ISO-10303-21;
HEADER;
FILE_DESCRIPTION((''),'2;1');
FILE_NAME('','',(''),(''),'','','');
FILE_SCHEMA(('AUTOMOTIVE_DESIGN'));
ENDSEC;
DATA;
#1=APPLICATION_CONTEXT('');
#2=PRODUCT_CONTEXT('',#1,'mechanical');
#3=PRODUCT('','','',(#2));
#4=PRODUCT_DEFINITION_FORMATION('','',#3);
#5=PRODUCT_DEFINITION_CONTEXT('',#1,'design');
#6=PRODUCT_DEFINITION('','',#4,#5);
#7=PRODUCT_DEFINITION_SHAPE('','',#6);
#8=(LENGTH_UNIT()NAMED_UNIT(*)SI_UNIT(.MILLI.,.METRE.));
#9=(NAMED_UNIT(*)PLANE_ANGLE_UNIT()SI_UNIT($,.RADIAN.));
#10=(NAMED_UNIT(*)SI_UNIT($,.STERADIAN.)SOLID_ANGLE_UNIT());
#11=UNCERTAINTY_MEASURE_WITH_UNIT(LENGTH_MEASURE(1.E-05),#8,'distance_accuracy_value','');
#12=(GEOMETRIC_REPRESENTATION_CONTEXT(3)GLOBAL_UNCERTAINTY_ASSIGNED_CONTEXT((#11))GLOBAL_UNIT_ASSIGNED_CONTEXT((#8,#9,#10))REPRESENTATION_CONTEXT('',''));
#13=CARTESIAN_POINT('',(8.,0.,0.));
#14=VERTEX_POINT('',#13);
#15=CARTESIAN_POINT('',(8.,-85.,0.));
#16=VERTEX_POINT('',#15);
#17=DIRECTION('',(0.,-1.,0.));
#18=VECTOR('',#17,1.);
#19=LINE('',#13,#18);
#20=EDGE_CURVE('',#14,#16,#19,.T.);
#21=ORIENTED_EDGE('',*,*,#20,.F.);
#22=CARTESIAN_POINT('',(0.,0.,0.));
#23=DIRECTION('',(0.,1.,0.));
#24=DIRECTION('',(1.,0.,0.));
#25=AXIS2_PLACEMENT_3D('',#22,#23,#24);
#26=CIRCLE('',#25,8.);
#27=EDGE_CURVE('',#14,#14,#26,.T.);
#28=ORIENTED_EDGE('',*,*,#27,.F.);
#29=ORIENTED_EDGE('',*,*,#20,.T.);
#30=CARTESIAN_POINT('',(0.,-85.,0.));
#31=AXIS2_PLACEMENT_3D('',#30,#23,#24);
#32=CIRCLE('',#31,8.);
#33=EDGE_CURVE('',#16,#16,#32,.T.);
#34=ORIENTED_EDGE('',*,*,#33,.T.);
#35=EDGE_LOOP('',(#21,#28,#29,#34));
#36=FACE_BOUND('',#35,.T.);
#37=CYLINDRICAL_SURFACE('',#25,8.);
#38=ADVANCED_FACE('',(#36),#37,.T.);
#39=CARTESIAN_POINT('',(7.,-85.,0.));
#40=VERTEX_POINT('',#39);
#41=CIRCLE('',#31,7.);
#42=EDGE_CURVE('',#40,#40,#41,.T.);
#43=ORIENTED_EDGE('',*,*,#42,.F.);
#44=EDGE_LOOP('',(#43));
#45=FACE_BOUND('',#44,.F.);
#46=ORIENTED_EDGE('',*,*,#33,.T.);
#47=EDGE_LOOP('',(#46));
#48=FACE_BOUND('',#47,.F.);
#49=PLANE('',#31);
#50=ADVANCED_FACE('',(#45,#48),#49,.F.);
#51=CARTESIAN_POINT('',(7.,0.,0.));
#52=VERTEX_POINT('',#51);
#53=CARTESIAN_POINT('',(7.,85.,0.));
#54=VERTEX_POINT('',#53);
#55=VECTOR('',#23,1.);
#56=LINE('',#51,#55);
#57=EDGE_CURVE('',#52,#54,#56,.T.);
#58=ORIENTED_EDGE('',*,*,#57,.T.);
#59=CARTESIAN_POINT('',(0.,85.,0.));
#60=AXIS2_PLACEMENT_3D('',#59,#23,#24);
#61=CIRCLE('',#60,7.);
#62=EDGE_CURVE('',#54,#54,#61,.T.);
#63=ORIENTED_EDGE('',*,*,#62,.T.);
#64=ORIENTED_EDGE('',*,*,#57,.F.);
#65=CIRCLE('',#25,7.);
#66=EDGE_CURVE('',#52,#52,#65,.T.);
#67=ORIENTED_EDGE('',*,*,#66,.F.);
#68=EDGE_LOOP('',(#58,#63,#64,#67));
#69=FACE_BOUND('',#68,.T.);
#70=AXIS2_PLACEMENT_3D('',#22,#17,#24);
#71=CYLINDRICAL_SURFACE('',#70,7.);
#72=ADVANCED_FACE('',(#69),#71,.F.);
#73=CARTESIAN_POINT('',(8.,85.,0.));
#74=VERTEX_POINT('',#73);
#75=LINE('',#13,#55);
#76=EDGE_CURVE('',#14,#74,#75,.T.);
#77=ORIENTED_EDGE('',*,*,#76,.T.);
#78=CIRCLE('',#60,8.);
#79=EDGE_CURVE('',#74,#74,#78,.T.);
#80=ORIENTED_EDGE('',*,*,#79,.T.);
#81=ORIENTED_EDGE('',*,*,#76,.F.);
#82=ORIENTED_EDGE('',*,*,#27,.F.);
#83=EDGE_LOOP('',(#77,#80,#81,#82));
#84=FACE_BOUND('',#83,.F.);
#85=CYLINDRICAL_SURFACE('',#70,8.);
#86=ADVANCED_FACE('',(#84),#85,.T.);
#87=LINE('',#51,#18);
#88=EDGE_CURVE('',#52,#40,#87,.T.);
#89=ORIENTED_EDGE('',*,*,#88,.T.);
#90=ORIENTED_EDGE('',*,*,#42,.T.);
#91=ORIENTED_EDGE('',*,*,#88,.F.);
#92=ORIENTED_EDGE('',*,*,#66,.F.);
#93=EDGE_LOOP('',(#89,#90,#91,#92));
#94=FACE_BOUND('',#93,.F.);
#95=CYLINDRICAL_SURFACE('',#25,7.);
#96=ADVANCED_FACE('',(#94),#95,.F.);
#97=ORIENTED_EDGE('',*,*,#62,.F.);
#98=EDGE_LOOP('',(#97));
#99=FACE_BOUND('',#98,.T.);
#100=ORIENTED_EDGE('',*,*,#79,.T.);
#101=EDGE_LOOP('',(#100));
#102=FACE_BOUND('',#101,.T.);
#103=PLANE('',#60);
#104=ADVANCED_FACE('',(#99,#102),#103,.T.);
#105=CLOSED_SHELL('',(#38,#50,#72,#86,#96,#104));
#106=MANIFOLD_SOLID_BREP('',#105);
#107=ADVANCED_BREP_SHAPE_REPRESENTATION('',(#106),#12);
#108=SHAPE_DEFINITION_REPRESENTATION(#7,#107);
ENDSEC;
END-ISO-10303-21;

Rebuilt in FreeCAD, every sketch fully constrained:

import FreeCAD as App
import Part
import Sketcher
from FreeCAD import Vector

doc = App.newDocument("Part")
body = doc.addObject("PartDesign::Body", "Body")

sketch1 = doc.addObject("Sketcher::SketchObject", "Sketch")
body.addObject(sketch1)
sketch1.AttachmentSupport = (doc.XZ_Plane, [""])
sketch1.MapMode = "FlatFace"
sketch1.addGeometry([
    Part.Circle(Vector(0, 0, 0), Vector(0, 0, 1), 8),
    Part.Circle(Vector(0, 0, 0), Vector(0, 0, 1), 7),
], False)
sketch1.addConstraint([
    Sketcher.Constraint("Coincident", 0, 3, -1, 1),
    Sketcher.Constraint("Coincident", 1, 3, -1, 1),
    Sketcher.Constraint("Diameter", 0, 16.0),
    Sketcher.Constraint("Diameter", 1, 14.0),
])
pad1 = doc.addObject("PartDesign::Pad", "Pad")
body.addObject(pad1)
pad1.Profile = sketch1
pad1.Length = 170
pad1.Midplane = True

doc.recompute()
